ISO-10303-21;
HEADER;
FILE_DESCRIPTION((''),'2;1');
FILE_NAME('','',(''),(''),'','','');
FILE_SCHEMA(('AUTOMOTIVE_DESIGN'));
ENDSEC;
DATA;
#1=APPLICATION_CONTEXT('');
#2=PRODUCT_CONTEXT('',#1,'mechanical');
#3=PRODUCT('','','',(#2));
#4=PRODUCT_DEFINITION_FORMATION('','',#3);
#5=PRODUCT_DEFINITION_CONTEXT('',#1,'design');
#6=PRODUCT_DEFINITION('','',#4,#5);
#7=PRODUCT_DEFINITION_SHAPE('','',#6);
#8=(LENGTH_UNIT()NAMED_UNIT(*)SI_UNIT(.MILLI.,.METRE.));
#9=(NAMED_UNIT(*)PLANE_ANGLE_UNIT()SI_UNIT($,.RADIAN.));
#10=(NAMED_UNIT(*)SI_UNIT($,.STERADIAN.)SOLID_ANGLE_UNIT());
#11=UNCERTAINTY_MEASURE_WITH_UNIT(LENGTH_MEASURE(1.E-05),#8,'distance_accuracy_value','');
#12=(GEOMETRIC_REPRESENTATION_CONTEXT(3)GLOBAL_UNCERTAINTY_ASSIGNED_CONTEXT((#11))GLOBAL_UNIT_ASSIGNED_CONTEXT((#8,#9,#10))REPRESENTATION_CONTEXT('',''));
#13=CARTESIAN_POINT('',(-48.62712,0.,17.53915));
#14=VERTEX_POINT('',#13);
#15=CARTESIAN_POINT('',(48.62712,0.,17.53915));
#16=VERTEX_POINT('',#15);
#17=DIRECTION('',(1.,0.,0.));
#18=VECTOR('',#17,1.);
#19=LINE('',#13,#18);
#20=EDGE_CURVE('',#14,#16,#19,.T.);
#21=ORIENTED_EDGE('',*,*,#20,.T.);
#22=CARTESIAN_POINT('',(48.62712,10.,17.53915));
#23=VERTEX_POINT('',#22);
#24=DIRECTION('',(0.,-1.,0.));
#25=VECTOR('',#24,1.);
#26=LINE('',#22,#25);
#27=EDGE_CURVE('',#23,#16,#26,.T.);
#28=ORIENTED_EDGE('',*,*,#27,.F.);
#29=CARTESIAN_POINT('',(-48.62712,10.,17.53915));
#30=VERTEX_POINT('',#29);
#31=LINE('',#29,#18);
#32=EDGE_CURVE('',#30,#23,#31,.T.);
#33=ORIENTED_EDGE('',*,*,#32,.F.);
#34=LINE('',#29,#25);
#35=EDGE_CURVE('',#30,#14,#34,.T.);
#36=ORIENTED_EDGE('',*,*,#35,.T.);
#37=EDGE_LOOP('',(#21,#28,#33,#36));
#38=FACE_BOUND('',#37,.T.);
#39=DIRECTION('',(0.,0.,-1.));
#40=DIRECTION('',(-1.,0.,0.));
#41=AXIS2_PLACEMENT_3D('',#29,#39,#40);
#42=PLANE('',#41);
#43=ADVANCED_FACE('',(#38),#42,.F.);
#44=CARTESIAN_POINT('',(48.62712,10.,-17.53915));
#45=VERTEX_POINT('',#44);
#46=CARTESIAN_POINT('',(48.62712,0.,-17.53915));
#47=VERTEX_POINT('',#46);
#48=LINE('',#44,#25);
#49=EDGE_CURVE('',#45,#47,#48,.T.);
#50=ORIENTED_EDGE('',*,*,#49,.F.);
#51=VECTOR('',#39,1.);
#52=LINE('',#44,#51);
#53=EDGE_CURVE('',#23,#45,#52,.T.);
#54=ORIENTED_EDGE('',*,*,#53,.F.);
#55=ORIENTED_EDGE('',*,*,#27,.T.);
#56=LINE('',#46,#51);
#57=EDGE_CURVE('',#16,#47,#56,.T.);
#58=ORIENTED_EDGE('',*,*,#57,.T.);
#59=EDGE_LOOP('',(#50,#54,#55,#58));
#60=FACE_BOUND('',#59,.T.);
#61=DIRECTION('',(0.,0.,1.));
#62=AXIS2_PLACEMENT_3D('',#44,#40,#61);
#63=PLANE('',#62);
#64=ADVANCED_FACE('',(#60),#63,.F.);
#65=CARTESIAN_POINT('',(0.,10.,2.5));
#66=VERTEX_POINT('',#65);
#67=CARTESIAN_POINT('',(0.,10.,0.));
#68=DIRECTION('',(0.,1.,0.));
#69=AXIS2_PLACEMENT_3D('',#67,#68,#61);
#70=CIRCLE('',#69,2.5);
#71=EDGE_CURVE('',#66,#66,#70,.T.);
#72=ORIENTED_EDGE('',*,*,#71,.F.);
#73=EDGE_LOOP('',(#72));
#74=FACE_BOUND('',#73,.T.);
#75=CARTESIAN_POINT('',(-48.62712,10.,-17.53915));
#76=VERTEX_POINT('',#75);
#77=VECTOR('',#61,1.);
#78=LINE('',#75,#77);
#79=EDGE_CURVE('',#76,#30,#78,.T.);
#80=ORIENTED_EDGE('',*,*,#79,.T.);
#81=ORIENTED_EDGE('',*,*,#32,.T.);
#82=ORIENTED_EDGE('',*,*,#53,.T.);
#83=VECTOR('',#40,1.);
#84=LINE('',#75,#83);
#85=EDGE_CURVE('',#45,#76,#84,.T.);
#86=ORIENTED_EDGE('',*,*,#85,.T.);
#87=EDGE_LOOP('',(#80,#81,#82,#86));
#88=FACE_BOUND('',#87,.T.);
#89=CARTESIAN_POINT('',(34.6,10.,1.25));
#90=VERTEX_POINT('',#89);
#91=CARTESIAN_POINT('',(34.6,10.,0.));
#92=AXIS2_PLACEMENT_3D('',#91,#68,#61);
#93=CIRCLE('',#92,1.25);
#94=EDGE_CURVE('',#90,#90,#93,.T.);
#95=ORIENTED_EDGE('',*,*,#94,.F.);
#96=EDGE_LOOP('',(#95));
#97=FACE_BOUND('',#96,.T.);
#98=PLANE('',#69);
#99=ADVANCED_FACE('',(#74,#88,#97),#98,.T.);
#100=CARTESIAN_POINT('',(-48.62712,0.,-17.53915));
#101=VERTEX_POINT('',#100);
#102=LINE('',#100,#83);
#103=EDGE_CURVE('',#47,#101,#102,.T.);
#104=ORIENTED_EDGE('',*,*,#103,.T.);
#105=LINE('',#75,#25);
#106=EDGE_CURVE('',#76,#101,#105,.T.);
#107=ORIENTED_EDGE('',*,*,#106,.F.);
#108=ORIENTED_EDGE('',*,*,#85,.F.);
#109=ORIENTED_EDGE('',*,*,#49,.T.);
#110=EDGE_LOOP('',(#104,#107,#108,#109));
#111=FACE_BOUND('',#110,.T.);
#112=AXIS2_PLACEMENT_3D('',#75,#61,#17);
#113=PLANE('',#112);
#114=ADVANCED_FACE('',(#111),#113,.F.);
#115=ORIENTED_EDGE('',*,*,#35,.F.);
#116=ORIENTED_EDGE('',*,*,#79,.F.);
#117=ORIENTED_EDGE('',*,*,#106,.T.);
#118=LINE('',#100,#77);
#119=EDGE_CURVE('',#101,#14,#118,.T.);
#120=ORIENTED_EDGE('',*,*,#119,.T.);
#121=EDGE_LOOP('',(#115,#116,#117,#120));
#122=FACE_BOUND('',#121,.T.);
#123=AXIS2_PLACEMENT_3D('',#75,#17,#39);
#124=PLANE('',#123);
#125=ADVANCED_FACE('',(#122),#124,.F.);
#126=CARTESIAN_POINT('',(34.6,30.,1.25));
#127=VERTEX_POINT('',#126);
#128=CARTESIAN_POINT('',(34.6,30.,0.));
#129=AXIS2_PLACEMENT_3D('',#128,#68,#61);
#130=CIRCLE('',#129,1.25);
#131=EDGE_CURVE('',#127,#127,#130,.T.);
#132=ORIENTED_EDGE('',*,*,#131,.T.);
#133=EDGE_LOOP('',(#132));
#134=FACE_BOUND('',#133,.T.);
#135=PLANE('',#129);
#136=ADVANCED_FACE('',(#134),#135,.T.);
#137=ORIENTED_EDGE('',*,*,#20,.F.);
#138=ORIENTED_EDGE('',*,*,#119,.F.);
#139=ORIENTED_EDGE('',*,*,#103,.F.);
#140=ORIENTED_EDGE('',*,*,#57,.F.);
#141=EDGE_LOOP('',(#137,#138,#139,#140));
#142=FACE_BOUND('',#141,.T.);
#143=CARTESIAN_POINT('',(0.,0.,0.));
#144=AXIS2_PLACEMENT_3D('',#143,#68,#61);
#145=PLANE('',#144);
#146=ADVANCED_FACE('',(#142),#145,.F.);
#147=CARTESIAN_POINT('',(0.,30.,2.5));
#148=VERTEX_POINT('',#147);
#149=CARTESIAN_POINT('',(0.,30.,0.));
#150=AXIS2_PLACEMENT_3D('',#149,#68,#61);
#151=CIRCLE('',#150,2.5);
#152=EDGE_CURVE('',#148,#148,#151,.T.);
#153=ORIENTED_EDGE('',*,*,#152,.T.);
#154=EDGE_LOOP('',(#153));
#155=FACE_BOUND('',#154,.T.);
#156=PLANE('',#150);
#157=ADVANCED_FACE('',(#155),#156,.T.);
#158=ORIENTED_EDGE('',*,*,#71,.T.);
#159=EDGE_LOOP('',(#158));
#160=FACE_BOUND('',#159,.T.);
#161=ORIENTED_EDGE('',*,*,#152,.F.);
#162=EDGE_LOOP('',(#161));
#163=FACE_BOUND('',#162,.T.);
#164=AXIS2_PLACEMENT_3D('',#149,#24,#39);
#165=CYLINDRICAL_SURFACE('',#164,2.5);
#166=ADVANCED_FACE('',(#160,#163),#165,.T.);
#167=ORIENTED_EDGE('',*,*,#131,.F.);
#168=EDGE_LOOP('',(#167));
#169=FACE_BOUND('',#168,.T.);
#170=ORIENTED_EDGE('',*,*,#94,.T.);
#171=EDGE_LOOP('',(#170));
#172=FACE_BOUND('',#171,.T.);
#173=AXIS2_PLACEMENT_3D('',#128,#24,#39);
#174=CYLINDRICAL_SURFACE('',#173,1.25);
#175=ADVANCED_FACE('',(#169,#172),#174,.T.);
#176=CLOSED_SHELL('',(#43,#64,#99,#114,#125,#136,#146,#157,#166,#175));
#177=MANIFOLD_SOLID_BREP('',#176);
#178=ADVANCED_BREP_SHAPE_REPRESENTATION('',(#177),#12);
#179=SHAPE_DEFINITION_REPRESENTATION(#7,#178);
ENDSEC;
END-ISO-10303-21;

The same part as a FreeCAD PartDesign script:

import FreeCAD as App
import Part
import Sketcher

V = App.Vector

doc = App.newDocument("Part")
params = doc.addObject("Spreadsheet::Sheet", "Params")
for row, (alias, value) in enumerate([
    ("pad1_length", "10 mm"),
    ("sketch2_diameter", "5 mm"),
    ("sketch2_diameter2", "2.5 mm"),
    ("pad2_length", "20 mm"),
], start=1):
    params.set(f"A{row}", alias)
    params.set(f"B{row}", "=" + value)
    params.setAlias(f"B{row}", alias)

body = doc.addObject("PartDesign::Body", "Body")

# Sketch on XZ plane
sketch1 = body.newObject("Sketcher::SketchObject", "Sketch")
sketch1.AttachmentSupport = (doc.getObject("XZ_Plane"), [""])
sketch1.MapMode = "FlatFace"
sketch1.addGeometry(Part.LineSegment(V(-48.62712, -17.53915, 0), V(-48.62712, 17.53915, 0)), False)
sketch1.addGeometry(Part.LineSegment(V(-48.62712, 17.53915, 0), V(48.62712, 17.53915, 0)), False)
sketch1.addGeometry(Part.LineSegment(V(48.62712, 17.53915, 0), V(48.62712, -17.53915, 0)), False)
sketch1.addGeometry(Part.LineSegment(V(48.62712, -17.53915, 0), V(-48.62712, -17.53915, 0)), False)
sketch1.addConstraint(Sketcher.Constraint("Coincident", 0, 2, 1, 1))
sketch1.addConstraint(Sketcher.Constraint("Coincident", 1, 2, 2, 1))
sketch1.addConstraint(Sketcher.Constraint("Coincident", 2, 2, 3, 1))
sketch1.addConstraint(Sketcher.Constraint("Coincident", 3, 2, 0, 1))
sketch1.addConstraint(Sketcher.Constraint("Vertical", 0))
sketch1.addConstraint(Sketcher.Constraint("Horizontal", 1))
sketch1.addConstraint(Sketcher.Constraint("Vertical", 2))
sketch1.addConstraint(Sketcher.Constraint("Horizontal", 3))
sketch1.addConstraint(Sketcher.Constraint("Symmetric", 0, 2, 2, 2, -1, 1))
sketch1.addConstraint(Sketcher.Constraint("DistanceY", 0, 1, 0, 2, 35.078301))
sketch1.addConstraint(Sketcher.Constraint("DistanceX", 1, 1, 1, 2, 97.25424))
pad1 = body.newObject("PartDesign::Pad", "Pad")
pad1.Profile = sketch1
pad1.setExpression("Length", "Params.pad1_length")
pad1.Reversed = True

# Sketch on XZ plane
sketch2 = body.newObject("Sketcher::SketchObject", "Sketch001")
sketch2.AttachmentSupport = (doc.getObject("XZ_Plane"), [""])
sketch2.MapMode = "FlatFace"
sketch2.AttachmentOffset = App.Placement(V(0, 0, -10), App.Rotation())
sketch2.addGeometry(Part.Circle(V(0, 0, 0), V(0, 0, 1), 2.5), False)
sketch2.addGeometry(Part.Circle(V(34.6, 0, 0), V(0, 0, 1), 1.25), False)
sketch2.addConstraint(Sketcher.Constraint("Coincident", 0, 3, -1, 1))
sketch2.addConstraint(Sketcher.Constraint("PointOnObject", 1, 3, -1))
sketch2.addConstraint(Sketcher.Constraint("Diameter", 0, 5.0))
sketch2.addConstraint(Sketcher.Constraint("Diameter", 1, 2.5))
sketch2.addConstraint(Sketcher.Constraint("DistanceX", -1, 1, 1, 3, 34.6))
sketch2.setExpression("Constraints[2]", "Params.sketch2_diameter")
sketch2.setExpression("Constraints[3]", "Params.sketch2_diameter2")
pad2 = body.newObject("PartDesign::Pad", "Pad001")
pad2.Profile = sketch2
pad2.setExpression("Length", "Params.pad2_length")
pad2.Reversed = True

doc.recompute()
